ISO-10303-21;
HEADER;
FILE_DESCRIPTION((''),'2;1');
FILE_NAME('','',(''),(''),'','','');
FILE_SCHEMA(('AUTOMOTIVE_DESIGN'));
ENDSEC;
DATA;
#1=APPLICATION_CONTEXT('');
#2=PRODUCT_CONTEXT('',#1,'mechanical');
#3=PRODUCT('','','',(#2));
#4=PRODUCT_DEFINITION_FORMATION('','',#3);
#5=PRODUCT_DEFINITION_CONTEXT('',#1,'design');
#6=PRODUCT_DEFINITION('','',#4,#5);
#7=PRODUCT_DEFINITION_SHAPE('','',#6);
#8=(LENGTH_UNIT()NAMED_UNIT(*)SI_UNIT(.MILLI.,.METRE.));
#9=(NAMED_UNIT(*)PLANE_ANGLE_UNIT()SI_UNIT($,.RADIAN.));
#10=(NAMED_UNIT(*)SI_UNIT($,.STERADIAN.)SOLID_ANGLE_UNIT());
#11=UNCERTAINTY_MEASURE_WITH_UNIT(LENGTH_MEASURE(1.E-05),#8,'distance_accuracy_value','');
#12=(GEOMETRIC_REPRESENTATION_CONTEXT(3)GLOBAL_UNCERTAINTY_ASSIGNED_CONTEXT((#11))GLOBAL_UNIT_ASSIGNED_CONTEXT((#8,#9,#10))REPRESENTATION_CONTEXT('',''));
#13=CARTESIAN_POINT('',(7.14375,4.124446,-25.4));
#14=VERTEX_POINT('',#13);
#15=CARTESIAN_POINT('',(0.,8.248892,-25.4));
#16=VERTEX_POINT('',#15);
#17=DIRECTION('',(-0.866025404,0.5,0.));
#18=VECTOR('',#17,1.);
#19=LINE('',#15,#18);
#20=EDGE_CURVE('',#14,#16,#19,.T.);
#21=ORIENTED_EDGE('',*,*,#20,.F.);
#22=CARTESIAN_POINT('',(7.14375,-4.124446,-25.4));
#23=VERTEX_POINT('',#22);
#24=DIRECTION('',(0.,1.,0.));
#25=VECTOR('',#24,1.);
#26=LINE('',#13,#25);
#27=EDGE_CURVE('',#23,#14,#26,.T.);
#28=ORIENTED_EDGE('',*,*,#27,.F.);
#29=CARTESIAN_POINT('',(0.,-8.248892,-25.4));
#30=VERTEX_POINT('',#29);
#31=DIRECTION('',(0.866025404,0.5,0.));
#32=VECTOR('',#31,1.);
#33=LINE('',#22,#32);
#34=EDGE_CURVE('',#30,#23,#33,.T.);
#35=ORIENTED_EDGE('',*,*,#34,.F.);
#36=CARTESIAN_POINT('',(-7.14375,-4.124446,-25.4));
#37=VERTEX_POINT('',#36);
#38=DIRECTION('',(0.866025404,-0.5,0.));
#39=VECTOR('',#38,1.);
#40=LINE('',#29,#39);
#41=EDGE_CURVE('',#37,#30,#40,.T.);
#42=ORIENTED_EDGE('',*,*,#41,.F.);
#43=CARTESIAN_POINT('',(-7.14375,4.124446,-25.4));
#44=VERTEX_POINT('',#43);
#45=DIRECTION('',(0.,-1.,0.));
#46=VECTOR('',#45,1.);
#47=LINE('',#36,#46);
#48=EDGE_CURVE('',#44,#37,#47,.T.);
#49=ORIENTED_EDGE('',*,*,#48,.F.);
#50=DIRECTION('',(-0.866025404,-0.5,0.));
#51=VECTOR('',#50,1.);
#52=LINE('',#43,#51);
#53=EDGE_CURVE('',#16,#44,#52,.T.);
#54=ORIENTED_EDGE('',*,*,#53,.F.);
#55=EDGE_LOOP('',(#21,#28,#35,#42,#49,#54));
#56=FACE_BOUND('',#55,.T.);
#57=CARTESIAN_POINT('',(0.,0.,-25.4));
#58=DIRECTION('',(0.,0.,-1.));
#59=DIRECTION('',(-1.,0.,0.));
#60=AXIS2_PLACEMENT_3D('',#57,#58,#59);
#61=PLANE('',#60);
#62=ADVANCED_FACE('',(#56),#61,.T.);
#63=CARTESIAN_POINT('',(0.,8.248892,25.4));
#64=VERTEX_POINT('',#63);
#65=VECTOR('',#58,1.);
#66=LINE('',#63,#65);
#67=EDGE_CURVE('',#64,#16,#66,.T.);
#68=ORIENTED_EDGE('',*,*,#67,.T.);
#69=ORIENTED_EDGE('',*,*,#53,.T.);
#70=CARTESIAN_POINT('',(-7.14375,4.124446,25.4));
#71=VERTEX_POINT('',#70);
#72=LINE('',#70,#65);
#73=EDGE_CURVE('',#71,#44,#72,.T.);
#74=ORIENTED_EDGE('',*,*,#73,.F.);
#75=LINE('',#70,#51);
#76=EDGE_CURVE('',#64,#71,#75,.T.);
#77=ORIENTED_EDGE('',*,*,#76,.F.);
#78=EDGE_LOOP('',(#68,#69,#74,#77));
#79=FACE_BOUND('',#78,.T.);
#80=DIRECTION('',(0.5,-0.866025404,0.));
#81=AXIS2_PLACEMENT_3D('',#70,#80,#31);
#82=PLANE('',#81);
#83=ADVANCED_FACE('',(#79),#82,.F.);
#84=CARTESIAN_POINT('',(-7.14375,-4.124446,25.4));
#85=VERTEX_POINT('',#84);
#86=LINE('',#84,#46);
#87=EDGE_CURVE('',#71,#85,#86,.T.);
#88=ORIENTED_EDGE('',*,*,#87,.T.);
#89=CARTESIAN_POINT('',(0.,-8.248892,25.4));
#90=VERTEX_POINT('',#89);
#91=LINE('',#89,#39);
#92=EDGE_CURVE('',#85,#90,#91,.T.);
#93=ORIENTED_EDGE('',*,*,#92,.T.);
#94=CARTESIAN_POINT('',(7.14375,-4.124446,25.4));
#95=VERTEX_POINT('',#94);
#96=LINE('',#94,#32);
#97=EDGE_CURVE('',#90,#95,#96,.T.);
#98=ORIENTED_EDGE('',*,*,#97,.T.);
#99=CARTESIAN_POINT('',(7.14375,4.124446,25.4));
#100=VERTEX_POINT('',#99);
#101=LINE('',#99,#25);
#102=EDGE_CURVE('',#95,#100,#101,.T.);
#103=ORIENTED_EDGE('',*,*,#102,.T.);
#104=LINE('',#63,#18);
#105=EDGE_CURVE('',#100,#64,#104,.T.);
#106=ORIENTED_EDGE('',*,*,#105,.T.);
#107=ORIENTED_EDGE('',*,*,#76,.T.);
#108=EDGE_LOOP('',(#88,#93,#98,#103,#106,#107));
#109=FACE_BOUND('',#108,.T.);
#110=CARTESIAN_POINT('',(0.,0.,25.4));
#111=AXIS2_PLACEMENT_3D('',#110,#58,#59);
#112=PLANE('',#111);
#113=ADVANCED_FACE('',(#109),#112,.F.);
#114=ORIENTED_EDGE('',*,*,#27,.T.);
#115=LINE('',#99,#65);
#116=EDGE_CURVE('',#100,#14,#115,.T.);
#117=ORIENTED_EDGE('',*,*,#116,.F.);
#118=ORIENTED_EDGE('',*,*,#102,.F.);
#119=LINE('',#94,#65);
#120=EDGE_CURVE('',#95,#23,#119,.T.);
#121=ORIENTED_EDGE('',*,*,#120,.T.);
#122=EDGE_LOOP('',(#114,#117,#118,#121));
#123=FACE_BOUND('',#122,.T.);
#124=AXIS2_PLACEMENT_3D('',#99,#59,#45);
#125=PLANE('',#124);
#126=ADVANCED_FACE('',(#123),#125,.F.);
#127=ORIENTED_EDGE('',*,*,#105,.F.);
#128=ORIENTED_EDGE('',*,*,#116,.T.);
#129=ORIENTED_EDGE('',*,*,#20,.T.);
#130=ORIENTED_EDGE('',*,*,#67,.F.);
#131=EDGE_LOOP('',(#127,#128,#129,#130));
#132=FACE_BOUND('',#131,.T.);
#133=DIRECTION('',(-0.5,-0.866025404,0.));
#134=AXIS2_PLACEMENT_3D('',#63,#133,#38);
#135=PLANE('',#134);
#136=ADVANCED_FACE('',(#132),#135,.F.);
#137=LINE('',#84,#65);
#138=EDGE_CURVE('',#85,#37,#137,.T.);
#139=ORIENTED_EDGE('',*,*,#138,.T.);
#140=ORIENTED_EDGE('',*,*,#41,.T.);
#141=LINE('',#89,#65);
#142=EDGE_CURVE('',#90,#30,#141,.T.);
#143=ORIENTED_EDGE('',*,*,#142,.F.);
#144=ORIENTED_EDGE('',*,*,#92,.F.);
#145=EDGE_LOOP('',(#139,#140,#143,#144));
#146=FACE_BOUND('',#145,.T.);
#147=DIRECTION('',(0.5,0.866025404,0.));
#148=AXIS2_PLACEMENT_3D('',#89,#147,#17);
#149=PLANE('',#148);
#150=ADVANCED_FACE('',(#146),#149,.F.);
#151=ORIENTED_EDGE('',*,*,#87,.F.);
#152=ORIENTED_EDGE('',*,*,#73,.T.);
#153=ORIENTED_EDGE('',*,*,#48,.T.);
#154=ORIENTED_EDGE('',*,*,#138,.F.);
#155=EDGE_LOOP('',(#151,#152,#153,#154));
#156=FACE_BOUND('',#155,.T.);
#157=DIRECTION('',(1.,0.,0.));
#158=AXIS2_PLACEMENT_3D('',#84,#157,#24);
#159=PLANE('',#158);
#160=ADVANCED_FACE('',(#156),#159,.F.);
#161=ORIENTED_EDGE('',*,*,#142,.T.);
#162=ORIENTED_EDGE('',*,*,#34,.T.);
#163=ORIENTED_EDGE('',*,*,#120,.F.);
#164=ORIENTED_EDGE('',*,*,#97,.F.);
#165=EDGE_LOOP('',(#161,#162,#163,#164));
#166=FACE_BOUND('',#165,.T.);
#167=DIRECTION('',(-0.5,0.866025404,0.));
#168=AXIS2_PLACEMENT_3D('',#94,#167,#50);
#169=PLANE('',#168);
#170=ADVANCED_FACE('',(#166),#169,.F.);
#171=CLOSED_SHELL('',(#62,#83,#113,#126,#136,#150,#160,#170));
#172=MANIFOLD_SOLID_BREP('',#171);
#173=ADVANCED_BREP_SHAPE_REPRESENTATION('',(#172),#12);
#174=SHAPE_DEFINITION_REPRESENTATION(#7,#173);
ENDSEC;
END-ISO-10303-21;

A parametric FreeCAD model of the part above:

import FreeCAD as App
import Part
import Sketcher

V = App.Vector
Q = App.Units.Quantity


def add_polygon(sketch, points):
    """Adds a closed chain of lines whose ends are joined by coincident constraints."""
    first, n = sketch.GeometryCount, len(points)
    for a, b in zip(points, points[1:] + points[:1]):
        sketch.addGeometry(Part.LineSegment(App.Vector(*a, 0), App.Vector(*b, 0)), False)
    for i in range(n):
        sketch.addConstraint(Sketcher.Constraint("Coincident", first + i, 2, first + (i + 1) % n, 1))

doc = App.newDocument("Part")
body = doc.addObject("PartDesign::Body", "Body")

# Sketch on XY plane
sketch1 = doc.addObject("Sketcher::SketchObject", "Sketch")
body.addObject(sketch1)
sketch1.AttachmentSupport = (doc.XY_Plane, [""])
sketch1.MapMode = "FlatFace"
add_polygon(sketch1, [(7, 4), (0, 8), (-7, 4), (-7, -4), (0, -8), (7, -4)])  # lines 0-5
sketch1.addConstraint([
    Sketcher.Constraint("Vertical", 2),
    Sketcher.Constraint("Vertical", 5),
    Sketcher.Constraint("Symmetric", 0, 2, 3, 2, -1, 1),
    Sketcher.Constraint("Symmetric", 1, 2, 4, 2, -1, 1),
    Sketcher.Constraint("PointOnObject", 0, 2, -2),
    Sketcher.Constraint("Parallel", 0, 3),
    Sketcher.Constraint("Horizontal", 2, 2, 4, 2),
    Sketcher.Constraint("Angle", 0, Q("150 deg")),
    Sketcher.Constraint("DistanceX", 1, 2, -1, 1, Q("0.28125 in")),
    Sketcher.Constraint("DistanceY", 2, 2, 2, 1, 8.248892),
])
pad1 = doc.addObject("PartDesign::Pad", "Pad")
body.addObject(pad1)
pad1.Profile = sketch1
pad1.Length = Q("2 in")
pad1.Midplane = True

doc.recompute()
